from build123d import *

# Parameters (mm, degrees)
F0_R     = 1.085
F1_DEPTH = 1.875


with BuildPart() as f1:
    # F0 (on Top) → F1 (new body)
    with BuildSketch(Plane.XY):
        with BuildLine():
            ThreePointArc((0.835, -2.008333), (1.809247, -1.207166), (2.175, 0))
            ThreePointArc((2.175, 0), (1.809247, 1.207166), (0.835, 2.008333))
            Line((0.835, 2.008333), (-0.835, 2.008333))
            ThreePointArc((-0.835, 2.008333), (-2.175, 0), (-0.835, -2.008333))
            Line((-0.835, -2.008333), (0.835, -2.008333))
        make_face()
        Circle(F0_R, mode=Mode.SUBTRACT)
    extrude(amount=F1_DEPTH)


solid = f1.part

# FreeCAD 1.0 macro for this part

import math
import FreeCAD as App
import Part
import Sketcher
Q = App.Units.Quantity

doc = App.newDocument("Part")
body = doc.addObject("PartDesign::Body", "Body")

# Sketch on XY plane
sketch1 = doc.addObject("Sketcher::SketchObject", "Sketch")
body.addObject(sketch1)
sketch1.AttachmentSupport = (doc.XY_Plane, [""])
sketch1.MapMode = "FlatFace"
sketch1.addGeometry([
    Part.ArcOfCircle(Part.Circle(App.Vector(0, 0, 0), App.Vector(0, 0, 1), 2.2), math.radians(-67), math.radians(0)),  # 0
    Part.ArcOfCircle(Part.Circle(App.Vector(0, 0, 0), App.Vector(0, 0, 1), 2.2), math.radians(0), math.radians(67)),  # 1
    Part.LineSegment(App.Vector(0.8, 2, 0), App.Vector(-0.8, 2, 0)),  # 2
    Part.ArcOfCircle(Part.Circle(App.Vector(0, 0, 0), App.Vector(0, 0, 1), 2.2), math.radians(113), math.radians(247)),  # 3
    Part.LineSegment(App.Vector(-0.8, -2, 0), App.Vector(0.8, -2, 0)),  # 4
    Part.Circle(App.Vector(0, 0, 0), App.Vector(0, 0, 1), 1.1),  # 5
], False)
sketch1.addConstraint([
    Sketcher.Constraint("Tangent", 0, 2, 1, 1),
    Sketcher.Constraint("Coincident", 1, 2, 2, 1),
    Sketcher.Constraint("Coincident", 2, 2, 3, 1),
    Sketcher.Constraint("Coincident", 3, 2, 4, 1),
    Sketcher.Constraint("Coincident", 4, 2, 0, 1),
    Sketcher.Constraint("Horizontal", 2),
    Sketcher.Constraint("Horizontal", 4),
    Sketcher.Constraint("Coincident", 0, 3, -1, 1),
    Sketcher.Constraint("Coincident", 3, 3, -1, 1),
    Sketcher.Constraint("Coincident", 5, 3, -1, 1),
    Sketcher.Constraint("Equal", 0, 1),
    Sketcher.Constraint("Equal", 1, 3),
    Sketcher.Constraint("PointOnObject", 0, 2, -1),
    Sketcher.Constraint("Vertical", 2, 2, 3, 2),
    Sketcher.Constraint("Diameter", 5, Q("2.17 mm")),
    Sketcher.Constraint("Radius", 0, Q("2.175002 mm")),
    Sketcher.Constraint("DistanceX", 2, 2, 2, 1, Q("1.67 mm")),
])
pad1 = doc.addObject("PartDesign::Pad", "Pad")
body.addObject(pad1)
pad1.Profile = sketch1
pad1.Length = 1.875

doc.recompute()
